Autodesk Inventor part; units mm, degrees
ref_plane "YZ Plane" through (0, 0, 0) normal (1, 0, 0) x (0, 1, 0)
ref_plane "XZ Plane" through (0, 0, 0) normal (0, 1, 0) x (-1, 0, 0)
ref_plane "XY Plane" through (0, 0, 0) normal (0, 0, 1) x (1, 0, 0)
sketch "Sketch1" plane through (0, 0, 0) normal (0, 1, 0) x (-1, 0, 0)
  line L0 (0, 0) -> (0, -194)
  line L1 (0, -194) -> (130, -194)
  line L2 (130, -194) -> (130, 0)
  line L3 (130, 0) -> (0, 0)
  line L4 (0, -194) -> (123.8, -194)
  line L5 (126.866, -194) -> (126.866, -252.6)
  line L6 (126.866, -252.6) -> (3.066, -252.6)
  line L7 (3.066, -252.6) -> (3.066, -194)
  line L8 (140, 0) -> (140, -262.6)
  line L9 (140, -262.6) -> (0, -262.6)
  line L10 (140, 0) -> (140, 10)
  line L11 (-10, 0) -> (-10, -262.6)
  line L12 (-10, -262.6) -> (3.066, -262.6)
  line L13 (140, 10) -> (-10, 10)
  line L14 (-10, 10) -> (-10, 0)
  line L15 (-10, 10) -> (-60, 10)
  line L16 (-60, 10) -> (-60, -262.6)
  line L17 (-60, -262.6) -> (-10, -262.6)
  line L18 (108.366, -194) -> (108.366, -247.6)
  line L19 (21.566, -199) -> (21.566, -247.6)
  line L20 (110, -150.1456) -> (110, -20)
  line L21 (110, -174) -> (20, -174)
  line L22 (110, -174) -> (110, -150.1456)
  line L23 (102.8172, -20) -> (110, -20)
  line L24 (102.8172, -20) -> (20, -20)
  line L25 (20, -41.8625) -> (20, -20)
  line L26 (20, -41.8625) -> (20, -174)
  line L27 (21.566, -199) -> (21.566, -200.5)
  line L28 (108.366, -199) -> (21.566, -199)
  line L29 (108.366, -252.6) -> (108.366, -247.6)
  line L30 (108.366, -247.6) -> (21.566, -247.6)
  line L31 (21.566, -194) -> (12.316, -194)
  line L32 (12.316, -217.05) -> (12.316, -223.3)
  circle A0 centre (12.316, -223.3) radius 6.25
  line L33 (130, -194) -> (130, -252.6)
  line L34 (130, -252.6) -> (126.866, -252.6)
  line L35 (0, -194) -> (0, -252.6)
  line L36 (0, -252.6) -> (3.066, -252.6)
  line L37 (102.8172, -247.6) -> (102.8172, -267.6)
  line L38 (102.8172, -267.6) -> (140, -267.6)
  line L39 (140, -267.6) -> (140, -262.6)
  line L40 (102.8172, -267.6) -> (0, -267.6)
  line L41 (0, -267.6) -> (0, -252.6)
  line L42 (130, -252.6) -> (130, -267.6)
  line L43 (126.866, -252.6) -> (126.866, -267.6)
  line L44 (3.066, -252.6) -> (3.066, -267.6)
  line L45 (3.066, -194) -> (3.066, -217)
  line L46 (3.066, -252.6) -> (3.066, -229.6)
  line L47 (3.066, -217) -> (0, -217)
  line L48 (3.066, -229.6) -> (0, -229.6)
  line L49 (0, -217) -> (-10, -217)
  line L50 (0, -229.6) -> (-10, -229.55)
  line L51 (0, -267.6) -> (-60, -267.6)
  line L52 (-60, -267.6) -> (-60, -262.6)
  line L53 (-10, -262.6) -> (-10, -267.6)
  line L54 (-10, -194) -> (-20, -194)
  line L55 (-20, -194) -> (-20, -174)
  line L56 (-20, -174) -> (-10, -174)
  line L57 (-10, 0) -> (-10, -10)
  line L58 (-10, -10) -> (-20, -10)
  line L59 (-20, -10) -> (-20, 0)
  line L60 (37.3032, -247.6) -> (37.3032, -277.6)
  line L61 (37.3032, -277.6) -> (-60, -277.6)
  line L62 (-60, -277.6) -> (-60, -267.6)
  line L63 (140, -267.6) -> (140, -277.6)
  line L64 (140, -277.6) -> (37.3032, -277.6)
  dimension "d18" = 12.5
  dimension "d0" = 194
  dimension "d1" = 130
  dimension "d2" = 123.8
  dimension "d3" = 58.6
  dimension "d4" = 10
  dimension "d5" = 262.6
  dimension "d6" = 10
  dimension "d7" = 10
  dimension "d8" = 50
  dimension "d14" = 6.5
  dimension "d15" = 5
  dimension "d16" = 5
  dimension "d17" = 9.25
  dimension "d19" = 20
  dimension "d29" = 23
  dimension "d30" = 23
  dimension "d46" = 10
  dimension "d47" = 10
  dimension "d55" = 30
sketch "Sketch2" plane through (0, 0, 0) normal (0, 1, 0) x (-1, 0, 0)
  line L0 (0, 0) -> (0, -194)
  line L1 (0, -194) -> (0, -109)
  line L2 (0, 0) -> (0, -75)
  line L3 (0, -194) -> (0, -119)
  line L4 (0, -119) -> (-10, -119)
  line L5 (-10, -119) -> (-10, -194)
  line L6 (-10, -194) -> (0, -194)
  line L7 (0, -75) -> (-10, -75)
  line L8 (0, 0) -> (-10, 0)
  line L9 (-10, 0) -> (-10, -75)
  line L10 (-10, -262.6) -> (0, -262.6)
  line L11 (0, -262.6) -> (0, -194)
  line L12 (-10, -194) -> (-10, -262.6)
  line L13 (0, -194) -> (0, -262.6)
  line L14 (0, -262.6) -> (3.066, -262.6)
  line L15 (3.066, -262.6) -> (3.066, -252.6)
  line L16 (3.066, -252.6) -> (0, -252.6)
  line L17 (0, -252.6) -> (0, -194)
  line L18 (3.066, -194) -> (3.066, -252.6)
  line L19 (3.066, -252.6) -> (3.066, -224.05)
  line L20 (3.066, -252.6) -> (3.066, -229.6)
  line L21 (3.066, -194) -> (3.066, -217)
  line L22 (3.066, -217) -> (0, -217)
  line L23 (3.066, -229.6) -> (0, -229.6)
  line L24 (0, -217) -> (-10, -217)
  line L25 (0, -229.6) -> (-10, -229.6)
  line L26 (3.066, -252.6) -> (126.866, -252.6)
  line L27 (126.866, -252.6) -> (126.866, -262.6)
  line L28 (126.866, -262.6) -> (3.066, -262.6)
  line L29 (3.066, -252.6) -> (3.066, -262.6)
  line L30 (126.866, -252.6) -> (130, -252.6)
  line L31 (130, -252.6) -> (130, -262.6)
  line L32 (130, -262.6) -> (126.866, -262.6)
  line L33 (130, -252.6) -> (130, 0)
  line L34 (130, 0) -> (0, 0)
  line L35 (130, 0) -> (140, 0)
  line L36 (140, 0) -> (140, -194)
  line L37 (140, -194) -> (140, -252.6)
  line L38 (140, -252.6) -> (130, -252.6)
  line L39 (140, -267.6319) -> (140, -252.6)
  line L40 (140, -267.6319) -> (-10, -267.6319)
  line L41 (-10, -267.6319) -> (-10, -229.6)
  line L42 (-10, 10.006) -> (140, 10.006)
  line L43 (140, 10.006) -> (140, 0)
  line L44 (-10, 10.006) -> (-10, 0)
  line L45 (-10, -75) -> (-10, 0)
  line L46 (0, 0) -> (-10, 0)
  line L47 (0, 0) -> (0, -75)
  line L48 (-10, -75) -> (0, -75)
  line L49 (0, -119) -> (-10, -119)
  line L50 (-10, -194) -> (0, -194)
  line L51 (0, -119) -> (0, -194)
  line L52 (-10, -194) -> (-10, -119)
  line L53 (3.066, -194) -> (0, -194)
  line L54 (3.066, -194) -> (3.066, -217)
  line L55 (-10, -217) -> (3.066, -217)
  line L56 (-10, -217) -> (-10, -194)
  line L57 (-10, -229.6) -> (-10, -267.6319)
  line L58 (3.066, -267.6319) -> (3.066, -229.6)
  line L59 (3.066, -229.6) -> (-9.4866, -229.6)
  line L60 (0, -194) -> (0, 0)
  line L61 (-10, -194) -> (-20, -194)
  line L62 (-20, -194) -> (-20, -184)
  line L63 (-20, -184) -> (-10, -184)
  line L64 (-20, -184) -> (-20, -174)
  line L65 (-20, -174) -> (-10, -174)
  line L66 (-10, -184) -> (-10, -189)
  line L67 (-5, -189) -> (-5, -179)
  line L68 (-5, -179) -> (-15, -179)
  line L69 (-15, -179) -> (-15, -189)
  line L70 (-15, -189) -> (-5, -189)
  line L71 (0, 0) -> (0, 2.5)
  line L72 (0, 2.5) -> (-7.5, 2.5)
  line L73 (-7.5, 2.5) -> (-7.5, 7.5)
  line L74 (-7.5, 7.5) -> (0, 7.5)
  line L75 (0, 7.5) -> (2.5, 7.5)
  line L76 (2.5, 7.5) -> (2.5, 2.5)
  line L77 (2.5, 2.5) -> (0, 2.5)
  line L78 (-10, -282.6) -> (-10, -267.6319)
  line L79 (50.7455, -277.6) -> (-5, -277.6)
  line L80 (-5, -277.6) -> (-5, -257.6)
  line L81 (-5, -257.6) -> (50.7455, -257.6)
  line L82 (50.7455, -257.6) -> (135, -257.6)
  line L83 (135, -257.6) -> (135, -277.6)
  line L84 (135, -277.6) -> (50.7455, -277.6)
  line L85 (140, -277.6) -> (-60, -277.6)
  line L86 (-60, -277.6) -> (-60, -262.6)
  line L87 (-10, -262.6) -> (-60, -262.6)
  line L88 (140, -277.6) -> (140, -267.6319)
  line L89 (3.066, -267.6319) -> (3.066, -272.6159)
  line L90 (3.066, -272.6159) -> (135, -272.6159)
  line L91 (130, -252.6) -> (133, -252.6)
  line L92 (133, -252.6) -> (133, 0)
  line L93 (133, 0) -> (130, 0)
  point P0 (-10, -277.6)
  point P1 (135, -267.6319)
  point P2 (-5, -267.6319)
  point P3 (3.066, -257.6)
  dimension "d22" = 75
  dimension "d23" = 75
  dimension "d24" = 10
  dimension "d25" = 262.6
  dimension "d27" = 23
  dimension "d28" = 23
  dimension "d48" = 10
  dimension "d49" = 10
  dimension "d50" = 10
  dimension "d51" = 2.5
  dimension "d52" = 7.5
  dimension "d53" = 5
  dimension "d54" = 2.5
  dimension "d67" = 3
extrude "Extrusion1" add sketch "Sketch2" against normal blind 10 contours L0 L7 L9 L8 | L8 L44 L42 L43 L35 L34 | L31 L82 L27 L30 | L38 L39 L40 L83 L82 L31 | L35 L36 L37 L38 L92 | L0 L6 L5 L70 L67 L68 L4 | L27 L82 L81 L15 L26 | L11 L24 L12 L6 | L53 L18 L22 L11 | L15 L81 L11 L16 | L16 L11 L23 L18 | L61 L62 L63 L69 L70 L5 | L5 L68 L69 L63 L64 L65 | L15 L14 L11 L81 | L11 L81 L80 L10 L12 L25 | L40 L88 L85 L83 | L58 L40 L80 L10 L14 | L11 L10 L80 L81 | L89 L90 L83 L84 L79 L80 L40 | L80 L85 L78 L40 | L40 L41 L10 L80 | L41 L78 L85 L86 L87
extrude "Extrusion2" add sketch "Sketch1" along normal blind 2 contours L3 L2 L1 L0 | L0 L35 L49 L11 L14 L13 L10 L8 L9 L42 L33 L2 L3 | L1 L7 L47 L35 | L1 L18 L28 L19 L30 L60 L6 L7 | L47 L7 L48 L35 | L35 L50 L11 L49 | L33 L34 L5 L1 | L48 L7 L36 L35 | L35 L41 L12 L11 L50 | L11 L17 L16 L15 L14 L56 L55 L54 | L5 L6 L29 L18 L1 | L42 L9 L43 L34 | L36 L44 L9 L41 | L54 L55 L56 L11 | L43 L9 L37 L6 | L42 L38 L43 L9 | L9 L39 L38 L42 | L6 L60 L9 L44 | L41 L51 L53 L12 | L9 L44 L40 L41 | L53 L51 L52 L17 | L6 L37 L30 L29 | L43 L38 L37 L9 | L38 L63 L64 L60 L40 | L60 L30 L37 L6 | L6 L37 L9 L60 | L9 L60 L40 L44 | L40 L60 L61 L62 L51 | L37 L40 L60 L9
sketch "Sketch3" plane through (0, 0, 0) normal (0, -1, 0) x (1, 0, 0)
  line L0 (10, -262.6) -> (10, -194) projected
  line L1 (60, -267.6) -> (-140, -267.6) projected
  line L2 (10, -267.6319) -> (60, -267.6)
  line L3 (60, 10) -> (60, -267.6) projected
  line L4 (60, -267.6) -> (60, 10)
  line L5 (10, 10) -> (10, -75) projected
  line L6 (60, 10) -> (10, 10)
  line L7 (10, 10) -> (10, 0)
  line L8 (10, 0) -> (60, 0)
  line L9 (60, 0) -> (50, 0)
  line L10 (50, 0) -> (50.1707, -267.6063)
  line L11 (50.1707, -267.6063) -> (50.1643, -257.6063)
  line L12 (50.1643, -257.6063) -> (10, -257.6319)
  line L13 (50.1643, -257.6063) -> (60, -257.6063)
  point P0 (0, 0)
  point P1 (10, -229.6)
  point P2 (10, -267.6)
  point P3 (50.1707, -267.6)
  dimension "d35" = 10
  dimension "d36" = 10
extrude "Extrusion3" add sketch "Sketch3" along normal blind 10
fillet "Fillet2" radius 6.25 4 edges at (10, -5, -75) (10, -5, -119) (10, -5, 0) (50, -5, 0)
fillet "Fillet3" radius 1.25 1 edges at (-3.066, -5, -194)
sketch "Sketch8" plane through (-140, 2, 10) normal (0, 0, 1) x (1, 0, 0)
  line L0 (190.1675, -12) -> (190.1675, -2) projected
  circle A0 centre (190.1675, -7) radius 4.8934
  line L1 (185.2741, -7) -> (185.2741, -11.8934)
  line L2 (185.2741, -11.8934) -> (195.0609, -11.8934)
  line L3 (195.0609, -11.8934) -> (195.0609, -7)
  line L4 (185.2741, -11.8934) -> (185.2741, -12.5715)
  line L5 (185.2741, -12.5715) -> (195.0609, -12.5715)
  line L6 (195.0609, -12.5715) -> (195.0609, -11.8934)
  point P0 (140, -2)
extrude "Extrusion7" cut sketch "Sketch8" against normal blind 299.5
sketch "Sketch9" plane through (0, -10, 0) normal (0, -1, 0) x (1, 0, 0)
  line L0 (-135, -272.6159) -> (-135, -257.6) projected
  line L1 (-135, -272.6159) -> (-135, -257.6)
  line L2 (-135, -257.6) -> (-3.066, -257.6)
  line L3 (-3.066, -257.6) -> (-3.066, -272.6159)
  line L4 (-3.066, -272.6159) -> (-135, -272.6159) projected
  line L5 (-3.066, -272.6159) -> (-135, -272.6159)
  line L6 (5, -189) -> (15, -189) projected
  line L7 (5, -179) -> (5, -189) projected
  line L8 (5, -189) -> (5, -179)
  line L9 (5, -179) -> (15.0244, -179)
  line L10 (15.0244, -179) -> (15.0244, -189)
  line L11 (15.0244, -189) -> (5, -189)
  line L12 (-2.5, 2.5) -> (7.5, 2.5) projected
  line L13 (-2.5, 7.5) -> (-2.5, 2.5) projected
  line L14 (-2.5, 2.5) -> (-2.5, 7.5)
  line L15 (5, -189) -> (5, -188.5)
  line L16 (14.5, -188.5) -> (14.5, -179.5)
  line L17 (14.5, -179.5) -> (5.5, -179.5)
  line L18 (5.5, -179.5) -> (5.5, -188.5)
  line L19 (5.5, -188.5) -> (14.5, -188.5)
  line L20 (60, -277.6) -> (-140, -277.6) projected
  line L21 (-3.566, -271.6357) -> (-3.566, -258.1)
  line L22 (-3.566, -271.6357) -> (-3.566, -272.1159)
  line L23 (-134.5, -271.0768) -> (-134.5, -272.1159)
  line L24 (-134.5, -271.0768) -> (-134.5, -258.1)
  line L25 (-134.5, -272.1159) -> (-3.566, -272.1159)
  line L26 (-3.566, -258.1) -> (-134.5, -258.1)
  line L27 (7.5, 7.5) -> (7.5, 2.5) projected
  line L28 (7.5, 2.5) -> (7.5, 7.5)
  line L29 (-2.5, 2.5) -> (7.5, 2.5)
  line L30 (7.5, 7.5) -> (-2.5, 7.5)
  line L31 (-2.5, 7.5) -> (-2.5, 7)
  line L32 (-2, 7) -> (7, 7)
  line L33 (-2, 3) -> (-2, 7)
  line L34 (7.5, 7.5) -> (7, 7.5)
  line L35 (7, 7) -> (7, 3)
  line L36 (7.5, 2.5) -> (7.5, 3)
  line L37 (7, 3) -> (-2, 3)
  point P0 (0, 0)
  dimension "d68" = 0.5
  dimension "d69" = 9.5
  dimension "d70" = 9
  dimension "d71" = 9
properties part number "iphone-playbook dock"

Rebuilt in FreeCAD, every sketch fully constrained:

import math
import FreeCAD as App
import Part
import Sketcher

V = App.Vector


def edges_at(feature, points):
    """Names of the edges that pass closest to the given points."""
    edges = feature.Shape.Edges
    near = lambda p: min(range(len(edges)), key=lambda i: edges[i].distToShape(Part.Vertex(*p))[0])
    return sorted({f"Edge{near(p) + 1}" for p in points})


def add_polygon(sketch, points):
    """Adds a closed chain of lines whose ends are joined by coincident constraints."""
    first, n = sketch.GeometryCount, len(points)
    for a, b in zip(points, points[1:] + points[:1]):
        sketch.addGeometry(Part.LineSegment(App.Vector(*a, 0), App.Vector(*b, 0)), False)
    for i in range(n):
        sketch.addConstraint(Sketcher.Constraint("Coincident", first + i, 2, first + (i + 1) % n, 1))

doc = App.newDocument("Part")
body = doc.addObject("PartDesign::Body", "Body")
body.AllowCompound = True

# Sketch on XZ plane
sketch1 = doc.addObject("Sketcher::SketchObject", "Sketch")
body.addObject(sketch1)
sketch1.AttachmentSupport = (doc.XZ_Plane, [""])
sketch1.MapMode = "FlatFace"
add_polygon(sketch1, [(0, -75), (0, 0), (-133, 0), (-133, -252.6), (-3.1, -252.6), (-3.1, -229.6), (10, -229.6), (10, -262.6), (60, -262.6), (60, -277.6), (-140, -277.6), (-140, 10), (10, 10), (10, -75)])  # lines 0-13
add_polygon(sketch1, [(-2.5, 2.5), (0, 2.5), (7.5, 2.5), (7.5, 7.5), (-2.5, 7.5)])  # lines 14-18
add_polygon(sketch1, [(-135, -257.6), (-135, -272.6), (-3.1, -272.6), (-3.1, -257.6)])  # lines 19-22
add_polygon(sketch1, [(0, -194), (0, -119), (10, -119), (10, -174), (20, -174), (20, -194), (10, -194), (10, -217), (-3.1, -217), (-3.1, -194)])  # lines 23-32
add_polygon(sketch1, [(5, -189), (15, -189), (15, -179), (5, -179)])  # lines 33-36
sketch1.addConstraint([
    Sketcher.Constraint("Vertical", 0),
    Sketcher.Constraint("Horizontal", 1),
    Sketcher.Constraint("Vertical", 2),
    Sketcher.Constraint("Horizontal", 3),
    Sketcher.Constraint("Vertical", 4),
    Sketcher.Constraint("Horizontal", 5),
    Sketcher.Constraint("Vertical", 6),
    Sketcher.Constraint("Horizontal", 7),
    Sketcher.Constraint("Vertical", 8),
    Sketcher.Constraint("Horizontal", 9),
    Sketcher.Constraint("Vertical", 10),
    Sketcher.Constraint("Horizontal", 11),
    Sketcher.Constraint("Vertical", 12),
    Sketcher.Constraint("Horizontal", 13),
    Sketcher.Constraint("Horizontal", 14),
    Sketcher.Constraint("Horizontal", 15),
    Sketcher.Constraint("Vertical", 16),
    Sketcher.Constraint("Horizontal", 17),
    Sketcher.Constraint("Vertical", 18),
    Sketcher.Constraint("Vertical", 19),
    Sketcher.Constraint("Horizontal", 20),
    Sketcher.Constraint("Vertical", 21),
    Sketcher.Constraint("Horizontal", 22),
    Sketcher.Constraint("Vertical", 23),
    Sketcher.Constraint("Horizontal", 24),
    Sketcher.Constraint("Vertical", 25),
    Sketcher.Constraint("Horizontal", 26),
    Sketcher.Constraint("Vertical", 27),
    Sketcher.Constraint("Horizontal", 28),
    Sketcher.Constraint("Vertical", 29),
    Sketcher.Constraint("Horizontal", 30),
    Sketcher.Constraint("Vertical", 31),
    Sketcher.Constraint("Horizontal", 32),
    Sketcher.Constraint("Horizontal", 33),
    Sketcher.Constraint("Vertical", 34),
    Sketcher.Constraint("Horizontal", 35),
    Sketcher.Constraint("Vertical", 36),
    Sketcher.Constraint("Coincident", 0, 2, -1, 1),
    Sketcher.Constraint("PointOnObject", 14, 2, -2),
    Sketcher.Constraint("PointOnObject", 23, 2, -2),
    Sketcher.Constraint("Horizontal", 28, 2, 31, 2),
    Sketcher.Constraint("Vertical", 6, 2, 11, 2),
    Sketcher.Constraint("Vertical", 4, 2, 20, 2),
    Sketcher.Constraint("Vertical", 12, 2, 24, 2),
    Sketcher.Constraint("Vertical", 25, 2, 28, 2),
    Sketcher.Constraint("Vertical", 21, 2, 30, 2),
    Sketcher.Constraint("Equal", 13, 17),
    Sketcher.Constraint("Equal", 24, 26),
    Sketcher.Constraint("Equal", 28, 33),
    Sketcher.Constraint("Equal", 0, 23),
    Sketcher.Constraint("Equal", 4, 29),
    Sketcher.Constraint("Equal", 35, 34),
    Sketcher.Constraint("DistanceX", 13, 2, 13, 1, 10.0),
    Sketcher.Constraint("DistanceY", 0, 1, 0, 2, 75.0),
    Sketcher.Constraint("DistanceY", 4, 1, 4, 2, 23.0),
    Sketcher.Constraint("DistanceY", 16, 1, 16, 2, 5.0),
    Sketcher.Constraint("DistanceX", 14, 1, 14, 2, 2.5),
    Sketcher.Constraint("DistanceX", -1, 1, 35, 2, 5.0),
    Sketcher.Constraint("DistanceY", 6, 2, 3, 2, 10.0),
    Sketcher.Constraint("DistanceX", 9, 2, 19, 2, 5.0),
    Sketcher.Constraint("DistanceY", 21, 2, 3, 2, 5.0),
    Sketcher.Constraint("DistanceY", 27, 2, 33, 2, 5.0),
    Sketcher.Constraint("DistanceY", 34, 2, 25, 2, 5.0),
    Sketcher.Constraint("DistanceY", 6, 2, -1, 1, 262.6),
    Sketcher.Constraint("DistanceY", -1, 1, 14, 2, 2.5),
    Sketcher.Constraint("DistanceX", 1, 2, 1, 1, 133.0),
    Sketcher.Constraint("DistanceX", 7, 1, 7, 2, 50.0),
    Sketcher.Constraint("DistanceX", 9, 2, 9, 1, 200.0),
    Sketcher.Constraint("DistanceY", 8, 2, 8, 1, 15.0),
    Sketcher.Constraint("DistanceY", 23, 2, -1, 1, 119.0),
    Sketcher.Constraint("DistanceX", 3, 1, 3, 2, 129.934),
    Sketcher.Constraint("DistanceY", 10, 1, 10, 2, 287.606),
    Sketcher.Constraint("DistanceY", 19, 2, 19, 1, 15.016),
])
pad1 = doc.addObject("PartDesign::Pad", "Pad")
body.addObject(pad1)
pad1.Profile = sketch1
pad1.Length = 10

# Sketch on XZ plane
sketch2 = doc.addObject("Sketcher::SketchObject", "Sketch001")
body.addObject(sketch2)
sketch2.AttachmentSupport = (doc.XZ_Plane, [""])
sketch2.MapMode = "FlatFace"
add_polygon(sketch2, [(-140, 10), (60, 10), (60, -278), (-140, -278)])  # lines 0-3
add_polygon(sketch2, [(-110, -20), (-110, -174), (-20, -174), (-20, -20)])  # lines 4-7
add_polygon(sketch2, [(-108, -199), (-108, -248), (-22, -248), (-22, -199)])  # lines 8-11
sketch2.addGeometry(Part.Circle(V(-12, -223, 0), V(0, 0, 1), 6), False)  # 12
sketch2.addConstraint([
    Sketcher.Constraint("Horizontal", 0),
    Sketcher.Constraint("Vertical", 1),
    Sketcher.Constraint("Horizontal", 2),
    Sketcher.Constraint("Vertical", 3),
    Sketcher.Constraint("Vertical", 4),
    Sketcher.Constraint("Horizontal", 5),
    Sketcher.Constraint("Vertical", 6),
    Sketcher.Constraint("Horizontal", 7),
    Sketcher.Constraint("Vertical", 8),
    Sketcher.Constraint("Horizontal", 9),
    Sketcher.Constraint("Vertical", 10),
    Sketcher.Constraint("Horizontal", 11),
    Sketcher.Constraint("Diameter", 12, 12.5),
    Sketcher.Constraint("DistanceY", -1, 1, 0, 2, 10.0),
    Sketcher.Constraint("DistanceX", 5, 2, -1, 1, 20.0),
    Sketcher.Constraint("DistanceY", 6, 2, -1, 1, 20.0),
    Sketcher.Constraint("DistanceX", 2, 2, 4, 2, 30.0),
    Sketcher.Constraint("DistanceY", 2, 2, 8, 2, 30.0),
    Sketcher.Constraint("DistanceX", 0, 1, 0, 2, 200.0),
    Sketcher.Constraint("DistanceX", 5, 1, 5, 2, 90.0),
    Sketcher.Constraint("DistanceY", 4, 2, 4, 1, 154.0),
    Sketcher.Constraint("DistanceX", 9, 2, 12, 3, 9.25),
    Sketcher.Constraint("DistanceX", 9, 1, 9, 2, 86.8),
    Sketcher.Constraint("DistanceY", 1, 2, 1, 1, 287.6),
    Sketcher.Constraint("DistanceY", 8, 2, 8, 1, 48.6),
    Sketcher.Constraint("DistanceY", 12, 3, -1, 1, 223.3),
    Sketcher.Constraint("DistanceX", 12, 3, -1, 1, 12.316),
])
pad2 = doc.addObject("PartDesign::Pad", "Pad001")
body.addObject(pad2)
pad2.Profile = sketch2
pad2.Length = 2
pad2.Reversed = True

# Sketch on XZ plane
sketch3 = doc.addObject("Sketcher::SketchObject", "Sketch002")
body.addObject(sketch3)
sketch3.AttachmentSupport = (doc.XZ_Plane, [""])
sketch3.MapMode = "FlatFace"
add_polygon(sketch3, [(50, -268), (60, -268), (60, 10), (10, 10), (10, 0), (50, 0)])  # lines 0-5
sketch3.addConstraint([
    Sketcher.Constraint("Vertical", 1),
    Sketcher.Constraint("Horizontal", 2),
    Sketcher.Constraint("Vertical", 3),
    Sketcher.Constraint("Horizontal", 4),
    Sketcher.Constraint("PointOnObject", 3, 2, -1),
    Sketcher.Constraint("Perpendicular", 0, 5),
    Sketcher.Constraint("DistanceY", 3, 2, 3, 1, 10.0),
    Sketcher.Constraint("DistanceX", -1, 1, 2, 2, 10.0),
    Sketcher.Constraint("DistanceX", 4, 2, 1, 2, 10.0),
    Sketcher.Constraint("DistanceX", 2, 2, 2, 1, 50.0),
    Sketcher.Constraint("DistanceY", 1, 1, 1, 2, 277.6),
    Sketcher.Constraint("Distance", 0, 9.8293),
])
pad3 = doc.addObject("PartDesign::Pad", "Pad002")
body.addObject(pad3)
pad3.Profile = sketch3
pad3.Length = 10
doc.recompute()

fillet = doc.addObject("PartDesign::Fillet", "Fillet")
body.addObject(fillet)
fillet.Base = (pad3, edges_at(pad3, [
    (10, -5, -75),
    (10, -5, -119),
    (10, -5, 0),
    (50, -5, 0),
]))
fillet.Radius = 6.25
doc.recompute()

fillet2 = doc.addObject("PartDesign::Fillet", "Fillet001")
body.addObject(fillet2)
fillet2.Base = (fillet, edges_at(fillet, [(-3.066, -5, -194)]))
fillet2.Radius = 1.25

# Sketch on XY plane
sketch4 = doc.addObject("Sketcher::SketchObject", "Sketch003")
body.addObject(sketch4)
sketch4.AttachmentSupport = (doc.XY_Plane, [""])
sketch4.MapMode = "FlatFace"
sketch4.AttachmentOffset = App.Placement(V(0, 0, 10), App.Rotation())
sketch4.addGeometry([
    Part.LineSegment(V(45.3, -5, 0), V(45.3, -10.6, 0)),
    Part.LineSegment(V(45.3, -10.6, 0), V(55.1, -10.6, 0)),
    Part.LineSegment(V(55.1, -10.6, 0), V(55.1, -5, 0)),
    Part.ArcOfCircle(Part.Circle(V(50.2, -5, 0), V(0, 0, 1), 4.9), math.radians(0), math.radians(180)),
], False)
sketch4.addConstraint([
    Sketcher.Constraint("Coincident", 0, 2, 1, 1),
    Sketcher.Constraint("Coincident", 1, 2, 2, 1),
    Sketcher.Constraint("Tangent", 2, 2, 3, 1),
    Sketcher.Constraint("Tangent", 3, 2, 0, 1),
    Sketcher.Constraint("Vertical", 0),
    Sketcher.Constraint("Horizontal", 1),
    Sketcher.Constraint("Vertical", 2),
    Sketcher.Constraint("DistanceY", 3, 3, -1, 1, 5.0),
    Sketcher.Constraint("Radius", 3, 4.8934),
    Sketcher.Constraint("DistanceY", 0, 2, 0, 1, 5.5715),
    Sketcher.Constraint("DistanceX", -1, 1, 0, 2, 45.274),
])
pocket1 = doc.addObject("PartDesign::Pocket", "Pocket")
body.addObject(pocket1)
pocket1.Profile = sketch4
pocket1.Length = 299.5

doc.recompute()
